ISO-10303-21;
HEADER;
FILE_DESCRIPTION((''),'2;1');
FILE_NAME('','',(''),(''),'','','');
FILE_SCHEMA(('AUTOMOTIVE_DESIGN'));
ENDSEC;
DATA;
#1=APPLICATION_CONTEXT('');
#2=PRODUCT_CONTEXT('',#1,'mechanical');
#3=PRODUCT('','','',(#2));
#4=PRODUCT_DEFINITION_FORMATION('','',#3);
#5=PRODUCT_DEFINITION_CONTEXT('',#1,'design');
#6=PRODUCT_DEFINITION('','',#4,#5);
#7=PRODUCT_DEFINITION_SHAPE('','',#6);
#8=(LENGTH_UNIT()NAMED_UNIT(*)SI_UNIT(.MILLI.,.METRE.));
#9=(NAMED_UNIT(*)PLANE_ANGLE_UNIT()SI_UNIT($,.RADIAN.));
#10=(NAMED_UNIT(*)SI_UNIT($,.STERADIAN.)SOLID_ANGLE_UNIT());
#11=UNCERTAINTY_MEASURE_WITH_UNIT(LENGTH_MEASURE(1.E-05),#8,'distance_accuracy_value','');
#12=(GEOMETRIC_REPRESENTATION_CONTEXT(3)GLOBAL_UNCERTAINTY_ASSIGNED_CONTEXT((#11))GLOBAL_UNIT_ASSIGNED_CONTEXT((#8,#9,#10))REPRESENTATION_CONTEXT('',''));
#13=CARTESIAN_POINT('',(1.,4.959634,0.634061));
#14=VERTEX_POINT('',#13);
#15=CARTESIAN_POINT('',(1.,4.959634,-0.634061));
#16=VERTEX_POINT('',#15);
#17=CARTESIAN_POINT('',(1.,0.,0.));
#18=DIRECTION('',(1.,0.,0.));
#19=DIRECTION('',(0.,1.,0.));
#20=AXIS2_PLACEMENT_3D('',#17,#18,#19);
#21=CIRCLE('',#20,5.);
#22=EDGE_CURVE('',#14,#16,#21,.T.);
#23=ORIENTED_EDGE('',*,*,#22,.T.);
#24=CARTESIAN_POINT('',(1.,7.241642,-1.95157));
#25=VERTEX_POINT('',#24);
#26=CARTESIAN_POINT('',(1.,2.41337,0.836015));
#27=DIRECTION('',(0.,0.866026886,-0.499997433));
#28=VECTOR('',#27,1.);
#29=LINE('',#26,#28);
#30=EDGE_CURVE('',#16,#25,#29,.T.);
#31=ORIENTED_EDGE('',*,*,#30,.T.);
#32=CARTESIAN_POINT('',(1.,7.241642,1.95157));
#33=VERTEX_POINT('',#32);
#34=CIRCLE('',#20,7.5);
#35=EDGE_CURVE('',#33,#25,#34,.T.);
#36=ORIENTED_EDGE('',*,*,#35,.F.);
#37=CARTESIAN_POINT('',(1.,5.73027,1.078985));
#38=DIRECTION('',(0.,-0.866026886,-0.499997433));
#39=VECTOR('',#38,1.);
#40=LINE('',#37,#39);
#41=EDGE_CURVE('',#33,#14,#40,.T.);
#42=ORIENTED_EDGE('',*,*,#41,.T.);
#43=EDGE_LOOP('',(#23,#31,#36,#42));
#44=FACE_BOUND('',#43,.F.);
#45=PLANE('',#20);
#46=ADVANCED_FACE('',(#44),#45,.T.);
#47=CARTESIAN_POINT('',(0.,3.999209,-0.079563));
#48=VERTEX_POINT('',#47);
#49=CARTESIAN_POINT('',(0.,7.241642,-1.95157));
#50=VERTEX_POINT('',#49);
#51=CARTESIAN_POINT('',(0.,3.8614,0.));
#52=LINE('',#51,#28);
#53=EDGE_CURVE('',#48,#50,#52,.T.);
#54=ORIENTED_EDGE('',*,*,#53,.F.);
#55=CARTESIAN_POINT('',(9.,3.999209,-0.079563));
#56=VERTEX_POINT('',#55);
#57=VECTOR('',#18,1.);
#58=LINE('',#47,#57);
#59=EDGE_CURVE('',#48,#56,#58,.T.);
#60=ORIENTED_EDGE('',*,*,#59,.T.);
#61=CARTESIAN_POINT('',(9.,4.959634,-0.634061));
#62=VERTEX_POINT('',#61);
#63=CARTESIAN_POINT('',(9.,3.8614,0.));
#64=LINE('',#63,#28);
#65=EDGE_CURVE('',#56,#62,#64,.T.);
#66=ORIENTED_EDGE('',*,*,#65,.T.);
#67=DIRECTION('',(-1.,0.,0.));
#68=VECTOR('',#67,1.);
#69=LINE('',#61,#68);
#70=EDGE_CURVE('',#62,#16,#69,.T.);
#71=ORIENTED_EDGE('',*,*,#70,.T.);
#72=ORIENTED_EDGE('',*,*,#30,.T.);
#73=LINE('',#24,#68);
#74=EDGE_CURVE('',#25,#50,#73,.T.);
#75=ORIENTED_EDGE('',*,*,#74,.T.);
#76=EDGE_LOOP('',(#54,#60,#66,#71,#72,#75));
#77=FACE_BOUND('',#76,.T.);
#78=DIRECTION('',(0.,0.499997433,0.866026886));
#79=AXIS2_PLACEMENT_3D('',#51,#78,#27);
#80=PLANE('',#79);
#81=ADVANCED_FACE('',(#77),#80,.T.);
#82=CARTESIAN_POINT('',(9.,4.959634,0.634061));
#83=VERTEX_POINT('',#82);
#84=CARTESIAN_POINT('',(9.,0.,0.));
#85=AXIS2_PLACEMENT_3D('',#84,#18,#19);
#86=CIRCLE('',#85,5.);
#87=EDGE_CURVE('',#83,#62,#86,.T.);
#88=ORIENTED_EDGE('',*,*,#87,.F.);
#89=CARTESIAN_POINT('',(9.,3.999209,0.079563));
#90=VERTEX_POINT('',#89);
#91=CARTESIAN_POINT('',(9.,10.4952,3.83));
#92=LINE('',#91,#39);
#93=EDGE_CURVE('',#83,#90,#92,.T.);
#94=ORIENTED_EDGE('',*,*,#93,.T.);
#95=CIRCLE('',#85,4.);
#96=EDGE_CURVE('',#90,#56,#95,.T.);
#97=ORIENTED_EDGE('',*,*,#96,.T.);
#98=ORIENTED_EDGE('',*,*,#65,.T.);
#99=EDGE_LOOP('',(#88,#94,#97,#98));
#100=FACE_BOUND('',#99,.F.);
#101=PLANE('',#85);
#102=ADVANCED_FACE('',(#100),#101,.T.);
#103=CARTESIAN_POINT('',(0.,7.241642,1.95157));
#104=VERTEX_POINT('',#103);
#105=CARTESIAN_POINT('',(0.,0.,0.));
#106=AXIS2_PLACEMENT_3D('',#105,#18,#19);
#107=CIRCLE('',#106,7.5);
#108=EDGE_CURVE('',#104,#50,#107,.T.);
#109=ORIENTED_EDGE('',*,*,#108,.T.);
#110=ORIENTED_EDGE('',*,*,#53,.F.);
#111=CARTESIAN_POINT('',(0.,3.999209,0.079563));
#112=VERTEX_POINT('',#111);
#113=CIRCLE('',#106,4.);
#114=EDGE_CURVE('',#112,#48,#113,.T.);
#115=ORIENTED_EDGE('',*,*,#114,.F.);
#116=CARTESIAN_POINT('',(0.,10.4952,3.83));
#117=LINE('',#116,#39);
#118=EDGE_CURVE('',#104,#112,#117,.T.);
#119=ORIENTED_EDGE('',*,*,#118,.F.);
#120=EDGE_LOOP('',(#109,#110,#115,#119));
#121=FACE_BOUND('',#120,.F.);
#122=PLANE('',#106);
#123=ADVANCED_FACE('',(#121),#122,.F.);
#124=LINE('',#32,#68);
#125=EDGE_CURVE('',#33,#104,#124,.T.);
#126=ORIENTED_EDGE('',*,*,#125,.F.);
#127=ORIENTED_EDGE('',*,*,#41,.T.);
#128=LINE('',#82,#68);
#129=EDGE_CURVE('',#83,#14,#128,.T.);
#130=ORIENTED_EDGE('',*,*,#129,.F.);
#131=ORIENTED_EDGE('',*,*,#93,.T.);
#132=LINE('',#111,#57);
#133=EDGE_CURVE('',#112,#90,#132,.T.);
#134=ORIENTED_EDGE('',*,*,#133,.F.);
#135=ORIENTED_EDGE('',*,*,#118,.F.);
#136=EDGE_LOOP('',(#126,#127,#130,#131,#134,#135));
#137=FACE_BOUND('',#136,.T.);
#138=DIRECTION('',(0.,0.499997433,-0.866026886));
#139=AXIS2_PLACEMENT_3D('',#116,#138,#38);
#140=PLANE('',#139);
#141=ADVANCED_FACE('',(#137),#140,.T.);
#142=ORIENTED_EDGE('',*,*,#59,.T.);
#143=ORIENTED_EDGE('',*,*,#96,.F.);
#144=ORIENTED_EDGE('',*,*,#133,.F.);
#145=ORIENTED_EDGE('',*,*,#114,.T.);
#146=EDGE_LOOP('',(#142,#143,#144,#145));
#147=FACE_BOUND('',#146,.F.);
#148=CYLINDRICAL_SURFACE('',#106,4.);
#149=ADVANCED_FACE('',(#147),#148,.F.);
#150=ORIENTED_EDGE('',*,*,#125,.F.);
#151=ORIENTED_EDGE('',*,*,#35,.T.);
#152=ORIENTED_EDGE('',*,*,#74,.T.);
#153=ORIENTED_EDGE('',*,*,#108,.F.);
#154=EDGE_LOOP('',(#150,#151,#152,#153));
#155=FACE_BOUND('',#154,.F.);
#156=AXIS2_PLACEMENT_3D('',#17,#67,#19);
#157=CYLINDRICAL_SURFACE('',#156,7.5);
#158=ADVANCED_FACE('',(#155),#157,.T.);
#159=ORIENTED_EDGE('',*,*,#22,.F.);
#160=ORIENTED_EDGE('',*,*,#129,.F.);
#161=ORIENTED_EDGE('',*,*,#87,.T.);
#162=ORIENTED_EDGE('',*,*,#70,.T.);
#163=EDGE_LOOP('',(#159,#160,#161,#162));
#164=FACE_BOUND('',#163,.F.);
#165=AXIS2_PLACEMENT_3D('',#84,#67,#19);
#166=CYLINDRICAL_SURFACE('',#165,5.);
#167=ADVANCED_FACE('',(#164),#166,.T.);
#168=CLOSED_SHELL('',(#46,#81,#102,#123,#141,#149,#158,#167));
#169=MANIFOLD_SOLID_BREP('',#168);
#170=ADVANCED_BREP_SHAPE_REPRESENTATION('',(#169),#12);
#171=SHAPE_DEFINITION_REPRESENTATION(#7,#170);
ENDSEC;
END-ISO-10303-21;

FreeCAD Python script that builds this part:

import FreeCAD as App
import Part
import Sketcher

V = App.Vector
Q = App.Units.Quantity

doc = App.newDocument("Part")
body = doc.addObject("PartDesign::Body", "Body")

sketch1 = doc.addObject("Sketcher::SketchObject", "Sketch")
body.addObject(sketch1)
sketch1.AttachmentSupport = (doc.XY_Plane, [""])
sketch1.MapMode = "FlatFace"
sketch1.addGeometry([
    Part.LineSegment(V(0, 7.5, 0), V(0, 4, 0)),
    Part.LineSegment(V(0, 4, 0), V(9, 4, 0)),
    Part.LineSegment(V(9, 4, 0), V(9, 5, 0)),
    Part.LineSegment(V(9, 5, 0), V(1, 5, 0)),
    Part.LineSegment(V(1, 5, 0), V(1, 7.5, 0)),
    Part.LineSegment(V(1, 7.5, 0), V(0, 7.5, 0)),
], False)
sketch1.addConstraint([
    Sketcher.Constraint("Coincident", 0, 2, 1, 1),
    Sketcher.Constraint("Coincident", 1, 2, 2, 1),
    Sketcher.Constraint("Coincident", 2, 2, 3, 1),
    Sketcher.Constraint("Coincident", 3, 2, 4, 1),
    Sketcher.Constraint("Coincident", 4, 2, 5, 1),
    Sketcher.Constraint("Coincident", 5, 2, 0, 1),
    Sketcher.Constraint("Vertical", 0),
    Sketcher.Constraint("Horizontal", 1),
    Sketcher.Constraint("Vertical", 2),
    Sketcher.Constraint("Horizontal", 3),
    Sketcher.Constraint("Vertical", 4),
    Sketcher.Constraint("Horizontal", 5),
    Sketcher.Constraint("PointOnObject", 0, 2, -2),
    Sketcher.Constraint("Equal", 5, 2),
    Sketcher.Constraint("DistanceX", 1, 1, 1, 2, Q("9 mm")),
    Sketcher.Constraint("DistanceX", 3, 2, 3, 1, Q("8 mm")),
    Sketcher.Constraint("DistanceY", 0, 2, 0, 1, Q("3.5 mm")),
    Sketcher.Constraint("DistanceY", -1, 1, 0, 2, Q("4 mm")),
])
revolution = doc.addObject("PartDesign::Revolution", "Revolution")
body.addObject(revolution)
revolution.Profile = sketch1
revolution.ReferenceAxis = (sketch1, ["H_Axis"])
revolution.Angle = 360

sketch2 = doc.addObject("Sketcher::SketchObject", "Sketch001")
body.addObject(sketch2)
sketch2.AttachmentSupport = (doc.YZ_Plane, [""])
sketch2.MapMode = "FlatFace"
sketch2.addGeometry([
    Part.LineSegment(V(10, -4, 0), V(10, 4, 0)),
    Part.LineSegment(V(10, 4, 0), V(4, 0, 0)),
    Part.LineSegment(V(4, 0, 0), V(10, -4, 0)),
], False)
sketch2.addConstraint([
    Sketcher.Constraint("Coincident", 0, 2, 1, 1),
    Sketcher.Constraint("Coincident", 1, 2, 2, 1),
    Sketcher.Constraint("Coincident", 2, 2, 0, 1),
    Sketcher.Constraint("Vertical", 0),
    Sketcher.Constraint("PointOnObject", 1, 2, -1),
    Sketcher.Constraint("Equal", 1, 2),
    Sketcher.Constraint("Angle", 1, Q("-150.0002 deg")),
    Sketcher.Constraint("DistanceY", 0, 1, 0, 2, Q("7.66 mm")),
    Sketcher.Constraint("DistanceX", -1, 1, 0, 2, Q("10.4952 mm")),
])
pocket1 = doc.addObject("PartDesign::Pocket", "Pocket")
body.addObject(pocket1)
pocket1.Profile = sketch2
pocket1.Length = 9
pocket1.Reversed = True

doc.recompute()
